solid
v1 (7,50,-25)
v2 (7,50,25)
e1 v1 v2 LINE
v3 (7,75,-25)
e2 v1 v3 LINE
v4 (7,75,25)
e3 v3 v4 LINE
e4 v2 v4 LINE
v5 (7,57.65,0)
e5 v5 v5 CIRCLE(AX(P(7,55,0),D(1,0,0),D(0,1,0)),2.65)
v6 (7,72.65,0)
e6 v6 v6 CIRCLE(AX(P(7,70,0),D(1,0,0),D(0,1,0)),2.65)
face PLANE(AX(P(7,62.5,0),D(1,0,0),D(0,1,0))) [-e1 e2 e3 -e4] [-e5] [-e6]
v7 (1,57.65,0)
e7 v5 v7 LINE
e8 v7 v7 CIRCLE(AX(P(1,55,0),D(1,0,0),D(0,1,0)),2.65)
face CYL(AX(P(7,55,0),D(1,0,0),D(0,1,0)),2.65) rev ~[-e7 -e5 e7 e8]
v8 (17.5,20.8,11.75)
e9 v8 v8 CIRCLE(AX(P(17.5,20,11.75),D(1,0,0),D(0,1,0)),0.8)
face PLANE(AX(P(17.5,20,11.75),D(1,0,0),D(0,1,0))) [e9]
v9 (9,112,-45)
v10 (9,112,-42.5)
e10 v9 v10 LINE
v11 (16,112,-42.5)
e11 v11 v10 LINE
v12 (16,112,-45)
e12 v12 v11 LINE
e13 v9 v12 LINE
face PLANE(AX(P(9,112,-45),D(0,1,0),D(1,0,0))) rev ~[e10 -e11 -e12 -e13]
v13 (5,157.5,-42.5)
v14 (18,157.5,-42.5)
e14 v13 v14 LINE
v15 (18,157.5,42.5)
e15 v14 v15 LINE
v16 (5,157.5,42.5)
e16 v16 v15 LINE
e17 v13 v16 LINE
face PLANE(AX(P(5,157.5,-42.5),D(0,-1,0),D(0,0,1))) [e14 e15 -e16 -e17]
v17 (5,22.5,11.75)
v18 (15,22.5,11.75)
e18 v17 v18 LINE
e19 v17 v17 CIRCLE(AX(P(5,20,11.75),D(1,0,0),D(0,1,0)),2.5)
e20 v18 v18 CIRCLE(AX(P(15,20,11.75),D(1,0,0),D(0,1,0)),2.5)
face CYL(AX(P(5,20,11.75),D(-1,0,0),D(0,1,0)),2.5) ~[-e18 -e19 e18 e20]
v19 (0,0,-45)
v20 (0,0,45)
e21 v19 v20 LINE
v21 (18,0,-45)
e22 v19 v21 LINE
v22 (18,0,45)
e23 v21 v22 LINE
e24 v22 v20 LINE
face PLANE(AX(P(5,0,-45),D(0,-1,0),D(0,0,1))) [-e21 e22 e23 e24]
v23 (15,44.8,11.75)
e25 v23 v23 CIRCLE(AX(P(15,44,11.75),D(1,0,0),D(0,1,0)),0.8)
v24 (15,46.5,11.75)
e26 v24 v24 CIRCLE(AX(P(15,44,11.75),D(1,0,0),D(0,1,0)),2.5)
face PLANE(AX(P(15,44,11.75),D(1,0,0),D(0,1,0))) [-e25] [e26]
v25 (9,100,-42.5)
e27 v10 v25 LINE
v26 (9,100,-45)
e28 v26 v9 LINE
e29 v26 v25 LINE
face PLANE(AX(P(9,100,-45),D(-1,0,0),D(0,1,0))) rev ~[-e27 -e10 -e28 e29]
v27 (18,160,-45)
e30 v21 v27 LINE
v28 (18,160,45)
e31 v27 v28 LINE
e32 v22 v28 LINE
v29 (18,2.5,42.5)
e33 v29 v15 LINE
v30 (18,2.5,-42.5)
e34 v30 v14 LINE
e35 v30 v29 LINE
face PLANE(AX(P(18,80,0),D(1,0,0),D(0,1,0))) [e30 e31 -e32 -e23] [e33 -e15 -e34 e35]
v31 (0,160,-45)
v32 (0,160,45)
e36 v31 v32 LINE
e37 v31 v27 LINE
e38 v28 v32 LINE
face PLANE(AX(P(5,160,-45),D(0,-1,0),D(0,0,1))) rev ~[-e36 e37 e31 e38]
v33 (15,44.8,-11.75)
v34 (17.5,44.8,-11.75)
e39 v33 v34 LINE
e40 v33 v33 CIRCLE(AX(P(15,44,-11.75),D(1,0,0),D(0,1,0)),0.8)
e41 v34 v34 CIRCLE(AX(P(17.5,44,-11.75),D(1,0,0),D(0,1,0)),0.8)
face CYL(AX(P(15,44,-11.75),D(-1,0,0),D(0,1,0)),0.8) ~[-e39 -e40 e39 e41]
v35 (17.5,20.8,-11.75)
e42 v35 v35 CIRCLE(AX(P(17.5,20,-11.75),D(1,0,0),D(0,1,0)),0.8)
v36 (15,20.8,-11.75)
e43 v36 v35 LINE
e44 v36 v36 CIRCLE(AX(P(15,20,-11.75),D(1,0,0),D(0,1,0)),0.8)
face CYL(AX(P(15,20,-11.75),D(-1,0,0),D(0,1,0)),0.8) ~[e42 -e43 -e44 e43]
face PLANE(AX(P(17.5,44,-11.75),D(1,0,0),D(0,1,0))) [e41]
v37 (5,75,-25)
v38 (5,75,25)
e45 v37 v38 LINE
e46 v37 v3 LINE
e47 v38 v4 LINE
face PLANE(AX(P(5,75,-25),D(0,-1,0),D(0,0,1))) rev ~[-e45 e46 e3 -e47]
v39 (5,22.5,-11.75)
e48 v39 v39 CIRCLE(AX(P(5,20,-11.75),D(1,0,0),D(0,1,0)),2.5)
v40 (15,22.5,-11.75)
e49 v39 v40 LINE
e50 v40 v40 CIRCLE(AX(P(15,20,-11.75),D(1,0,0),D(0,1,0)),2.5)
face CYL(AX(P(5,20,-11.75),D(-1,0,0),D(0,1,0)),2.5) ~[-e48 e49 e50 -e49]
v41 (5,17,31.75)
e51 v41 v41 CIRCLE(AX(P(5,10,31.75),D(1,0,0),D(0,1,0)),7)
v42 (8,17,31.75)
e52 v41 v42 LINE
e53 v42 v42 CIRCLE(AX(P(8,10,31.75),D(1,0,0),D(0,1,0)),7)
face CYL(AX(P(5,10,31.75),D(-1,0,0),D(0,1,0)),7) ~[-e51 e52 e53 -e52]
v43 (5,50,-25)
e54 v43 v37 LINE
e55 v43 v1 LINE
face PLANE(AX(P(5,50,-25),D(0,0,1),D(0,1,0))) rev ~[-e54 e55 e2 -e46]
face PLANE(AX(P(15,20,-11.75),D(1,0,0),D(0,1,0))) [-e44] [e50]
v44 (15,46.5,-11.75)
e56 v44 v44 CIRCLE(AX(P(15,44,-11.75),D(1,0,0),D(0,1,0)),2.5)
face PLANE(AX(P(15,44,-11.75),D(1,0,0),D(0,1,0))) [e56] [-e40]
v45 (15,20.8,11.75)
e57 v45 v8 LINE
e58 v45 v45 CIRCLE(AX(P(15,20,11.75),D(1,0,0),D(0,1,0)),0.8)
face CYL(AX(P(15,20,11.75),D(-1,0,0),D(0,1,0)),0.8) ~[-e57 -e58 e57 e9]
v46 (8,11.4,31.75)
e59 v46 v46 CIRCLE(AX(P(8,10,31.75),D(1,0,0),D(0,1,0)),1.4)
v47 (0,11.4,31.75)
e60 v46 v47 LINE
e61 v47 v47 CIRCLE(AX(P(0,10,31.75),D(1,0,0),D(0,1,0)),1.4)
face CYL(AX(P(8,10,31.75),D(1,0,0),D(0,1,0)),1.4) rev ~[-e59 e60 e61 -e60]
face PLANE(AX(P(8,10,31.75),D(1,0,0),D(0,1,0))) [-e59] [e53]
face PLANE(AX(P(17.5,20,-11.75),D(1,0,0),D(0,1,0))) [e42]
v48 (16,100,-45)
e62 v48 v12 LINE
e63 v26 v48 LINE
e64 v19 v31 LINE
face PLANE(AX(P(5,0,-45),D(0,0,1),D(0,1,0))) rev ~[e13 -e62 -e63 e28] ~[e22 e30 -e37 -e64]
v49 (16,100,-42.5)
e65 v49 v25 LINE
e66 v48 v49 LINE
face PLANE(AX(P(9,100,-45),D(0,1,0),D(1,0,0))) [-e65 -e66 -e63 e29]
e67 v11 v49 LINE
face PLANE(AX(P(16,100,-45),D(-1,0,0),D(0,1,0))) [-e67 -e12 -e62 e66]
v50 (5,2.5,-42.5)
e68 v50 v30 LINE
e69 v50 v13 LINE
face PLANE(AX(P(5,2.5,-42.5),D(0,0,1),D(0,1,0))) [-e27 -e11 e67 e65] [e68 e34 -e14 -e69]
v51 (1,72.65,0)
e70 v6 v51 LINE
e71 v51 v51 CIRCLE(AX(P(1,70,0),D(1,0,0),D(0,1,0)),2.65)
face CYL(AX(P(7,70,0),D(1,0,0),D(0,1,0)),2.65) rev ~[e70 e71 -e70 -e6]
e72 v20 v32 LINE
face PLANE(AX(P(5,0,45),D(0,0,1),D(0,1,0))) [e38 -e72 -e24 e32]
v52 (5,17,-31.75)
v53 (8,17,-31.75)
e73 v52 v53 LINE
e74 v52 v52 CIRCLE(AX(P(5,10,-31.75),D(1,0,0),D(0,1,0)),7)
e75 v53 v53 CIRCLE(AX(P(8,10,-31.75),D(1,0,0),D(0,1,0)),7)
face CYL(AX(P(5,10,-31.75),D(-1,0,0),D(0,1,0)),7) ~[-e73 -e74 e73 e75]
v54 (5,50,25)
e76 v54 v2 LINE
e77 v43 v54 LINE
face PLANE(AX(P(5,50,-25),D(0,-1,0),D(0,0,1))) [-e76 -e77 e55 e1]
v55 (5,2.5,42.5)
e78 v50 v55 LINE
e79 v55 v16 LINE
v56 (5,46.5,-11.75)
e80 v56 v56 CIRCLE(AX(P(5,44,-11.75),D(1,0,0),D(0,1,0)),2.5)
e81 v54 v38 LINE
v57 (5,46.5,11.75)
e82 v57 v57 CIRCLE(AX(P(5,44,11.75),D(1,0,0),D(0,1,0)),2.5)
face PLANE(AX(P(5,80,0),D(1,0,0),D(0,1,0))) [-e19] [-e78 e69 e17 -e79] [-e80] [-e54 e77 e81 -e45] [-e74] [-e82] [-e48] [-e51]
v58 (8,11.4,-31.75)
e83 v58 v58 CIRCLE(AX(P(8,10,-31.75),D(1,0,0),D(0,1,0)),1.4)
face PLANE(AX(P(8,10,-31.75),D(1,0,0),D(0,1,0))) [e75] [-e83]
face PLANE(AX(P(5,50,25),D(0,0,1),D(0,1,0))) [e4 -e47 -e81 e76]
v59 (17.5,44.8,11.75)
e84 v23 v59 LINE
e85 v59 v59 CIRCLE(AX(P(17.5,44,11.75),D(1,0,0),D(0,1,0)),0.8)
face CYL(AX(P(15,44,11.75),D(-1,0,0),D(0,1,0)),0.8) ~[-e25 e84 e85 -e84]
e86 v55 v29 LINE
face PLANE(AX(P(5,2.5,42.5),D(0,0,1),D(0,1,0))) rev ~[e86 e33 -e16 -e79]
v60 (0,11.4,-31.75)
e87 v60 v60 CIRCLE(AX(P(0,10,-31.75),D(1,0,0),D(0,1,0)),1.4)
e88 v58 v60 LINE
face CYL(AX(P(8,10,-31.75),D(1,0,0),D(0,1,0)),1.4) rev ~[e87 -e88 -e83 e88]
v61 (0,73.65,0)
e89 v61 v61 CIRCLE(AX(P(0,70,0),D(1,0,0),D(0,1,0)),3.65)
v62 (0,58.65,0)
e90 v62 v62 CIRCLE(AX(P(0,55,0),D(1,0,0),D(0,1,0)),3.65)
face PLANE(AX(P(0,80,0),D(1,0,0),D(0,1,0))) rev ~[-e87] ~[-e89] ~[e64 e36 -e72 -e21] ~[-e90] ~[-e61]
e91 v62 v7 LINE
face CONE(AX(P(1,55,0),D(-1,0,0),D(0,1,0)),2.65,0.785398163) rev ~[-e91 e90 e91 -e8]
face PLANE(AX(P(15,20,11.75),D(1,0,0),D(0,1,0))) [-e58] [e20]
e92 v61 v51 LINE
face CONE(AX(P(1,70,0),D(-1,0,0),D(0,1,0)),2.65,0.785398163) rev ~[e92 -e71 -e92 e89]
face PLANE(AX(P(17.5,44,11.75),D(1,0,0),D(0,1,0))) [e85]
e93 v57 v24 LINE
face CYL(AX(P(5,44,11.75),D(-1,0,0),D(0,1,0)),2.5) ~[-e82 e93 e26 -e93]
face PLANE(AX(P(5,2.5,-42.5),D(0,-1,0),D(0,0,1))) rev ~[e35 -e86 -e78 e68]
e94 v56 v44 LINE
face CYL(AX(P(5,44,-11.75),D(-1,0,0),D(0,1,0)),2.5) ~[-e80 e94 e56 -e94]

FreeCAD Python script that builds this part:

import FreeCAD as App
import Part
import Sketcher

V = App.Vector
Q = App.Units.Quantity


def edges_at(feature, points):
    """Names of the edges that pass closest to the given points."""
    edges = feature.Shape.Edges
    near = lambda p: min(range(len(edges)), key=lambda i: edges[i].distToShape(Part.Vertex(*p))[0])
    return sorted({f"Edge{near(p) + 1}" for p in points})

doc = App.newDocument("Part")
body = doc.addObject("PartDesign::Body", "Body")

sketch1 = body.newObject("Sketcher::SketchObject", "Sketch")
sketch1.AttachmentSupport = (doc.getObject("YZ_Plane"), [""])
sketch1.MapMode = "FlatFace"
sketch1.addGeometry([
    Part.LineSegment(V(0, 45, 0), V(0, -45, 0)),
    Part.LineSegment(V(0, -45, 0), V(160, -45, 0)),
    Part.LineSegment(V(160, -45, 0), V(160, 45, 0)),
    Part.LineSegment(V(160, 45, 0), V(0, 45, 0)),
], False)
sketch1.addConstraint([
    Sketcher.Constraint("Coincident", 0, 2, 1, 1),
    Sketcher.Constraint("Coincident", 1, 2, 2, 1),
    Sketcher.Constraint("Coincident", 2, 2, 3, 1),
    Sketcher.Constraint("Coincident", 3, 2, 0, 1),
    Sketcher.Constraint("Vertical", 0),
    Sketcher.Constraint("Horizontal", 1),
    Sketcher.Constraint("Vertical", 2),
    Sketcher.Constraint("Horizontal", 3),
    Sketcher.Constraint("Symmetric", 0, 2, 3, 2, -1, 1),
    Sketcher.Constraint("DistanceX", 1, 1, 1, 2, Q("160 mm")),
    Sketcher.Constraint("DistanceY", 0, 2, 0, 1, Q("90 mm")),
])
pad1 = body.newObject("PartDesign::Pad", "Pad")
pad1.Profile = sketch1
pad1.Length = 5

sketch2 = body.newObject("Sketcher::SketchObject", "Sketch001")
sketch2.AttachmentSupport = (doc.getObject("YZ_Plane"), [""])
sketch2.MapMode = "FlatFace"
sketch2.AttachmentOffset = App.Placement(V(0, 0, 5), App.Rotation())
sketch2.addGeometry([
    Part.Circle(V(10, 32, 0), V(0, 0, 1), 7),
    Part.Circle(V(10, -32, 0), V(0, 0, 1), 7),
], False)
sketch2.addConstraint([
    Sketcher.Constraint("Equal", 0, 1),
    Sketcher.Constraint("Symmetric", 0, 3, 1, 3, -1),
    Sketcher.Constraint("Diameter", 0, Q("14 mm")),
    Sketcher.Constraint("DistanceX", -1, 1, 0, 3, Q("10 mm")),
    Sketcher.Constraint("DistanceY", 1, 3, 0, 3, Q("63.5 mm")),
])
pad2 = body.newObject("PartDesign::Pad", "Pad001")
pad2.Profile = sketch2
pad2.Length = 3

sketch3 = body.newObject("Sketcher::SketchObject", "Sketch002")
sketch3.AttachmentSupport = (doc.getObject("YZ_Plane"), [""])
sketch3.MapMode = "FlatFace"
sketch3.AttachmentOffset = App.Placement(V(0, 0, 5), App.Rotation())
sketch3.addGeometry([
    Part.Circle(V(20, 11.8, 0), V(0, 0, 1), 2.5),
    Part.Circle(V(44, 11.8, 0), V(0, 0, 1), 2.5),
    Part.Circle(V(20, -11.8, 0), V(0, 0, 1), 2.5),
    Part.Circle(V(44, -11.8, 0), V(0, 0, 1), 2.5),
], False)
sketch3.addConstraint([
    Sketcher.Constraint("Equal", 0, 1),
    Sketcher.Constraint("Equal", 1, 2),
    Sketcher.Constraint("Equal", 2, 3),
    Sketcher.Constraint("Symmetric", 0, 3, 2, 3, -1),
    Sketcher.Constraint("Symmetric", 1, 3, 3, 3, -1),
    Sketcher.Constraint("Horizontal", 0, 3, 1, 3),
    Sketcher.Constraint("Diameter", 0, Q("5 mm")),
    Sketcher.Constraint("DistanceX", -1, 1, 0, 3, Q("20 mm")),
    Sketcher.Constraint("DistanceX", -1, 1, 1, 3, Q("44 mm")),
    Sketcher.Constraint("DistanceY", 2, 3, 0, 3, Q("23.5 mm")),
])
pad3 = body.newObject("PartDesign::Pad", "Pad002")
pad3.Profile = sketch3
pad3.Length = 10

sketch4 = body.newObject("Sketcher::SketchObject", "Sketch003")
sketch4.AttachmentSupport = (doc.getObject("YZ_Plane"), [""])
sketch4.MapMode = "FlatFace"
sketch4.AttachmentOffset = App.Placement(V(0, 0, 15), App.Rotation())
sketch4.addGeometry([
    Part.Circle(V(44, 11.8, 0), V(0, 0, 1), 0.8),
    Part.Circle(V(20, 11.8, 0), V(0, 0, 1), 0.8),
    Part.Circle(V(20, -11.8, 0), V(0, 0, 1), 0.8),
    Part.Circle(V(44, -11.8, 0), V(0, 0, 1), 0.8),
], False)
sketch4.addConstraint([
    Sketcher.Constraint("Equal", 0, 1),
    Sketcher.Constraint("Equal", 1, 2),
    Sketcher.Constraint("Equal", 2, 3),
    Sketcher.Constraint("Symmetric", 1, 3, 2, 3, -1),
    Sketcher.Constraint("Symmetric", 0, 3, 3, 3, -1),
    Sketcher.Constraint("Horizontal", 0, 3, 1, 3),
    Sketcher.Constraint("Diameter", 0, Q("1.6 mm")),
    Sketcher.Constraint("DistanceX", -1, 1, 0, 3, Q("44 mm")),
    Sketcher.Constraint("DistanceX", -1, 1, 1, 3, Q("20 mm")),
    Sketcher.Constraint("DistanceY", 2, 3, 1, 3, Q("23.5 mm")),
])
pad4 = body.newObject("PartDesign::Pad", "Pad003")
pad4.Profile = sketch4
pad4.Length = 2.5

sketch5 = body.newObject("Sketcher::SketchObject", "Sketch004")
sketch5.AttachmentSupport = (doc.getObject("YZ_Plane"), [""])
sketch5.MapMode = "FlatFace"
sketch5.AttachmentOffset = App.Placement(V(0, 0, 8), App.Rotation())
sketch5.addGeometry([
    Part.Circle(V(10, 31.8, 0), V(0, 0, 1), 1.4),
    Part.Circle(V(10, -31.8, 0), V(0, 0, 1), 1.4),
], False)
sketch5.addConstraint([
    Sketcher.Constraint("Equal", 0, 1),
    Sketcher.Constraint("Symmetric", 0, 3, 1, 3, -1),
    Sketcher.Constraint("Diameter", 0, Q("2.8 mm")),
    Sketcher.Constraint("DistanceX", -1, 1, 0, 3, Q("10 mm")),
    Sketcher.Constraint("DistanceY", 1, 3, 0, 3, Q("63.5 mm")),
])
pocket1 = body.newObject("PartDesign::Pocket", "Pocket")
pocket1.Profile = sketch5
pocket1.Length = 8

sketch6 = body.newObject("Sketcher::SketchObject", "Sketch005")
sketch6.AttachmentSupport = (doc.getObject("YZ_Plane"), [""])
sketch6.MapMode = "FlatFace"
sketch6.AttachmentOffset = App.Placement(V(0, 0, 5), App.Rotation())
sketch6.addGeometry([
    Part.LineSegment(V(50, 25, 0), V(50, -25, 0)),
    Part.LineSegment(V(50, -25, 0), V(75, -25, 0)),
    Part.LineSegment(V(75, -25, 0), V(75, 25, 0)),
    Part.LineSegment(V(75, 25, 0), V(50, 25, 0)),
], False)
sketch6.addConstraint([
    Sketcher.Constraint("Coincident", 0, 2, 1, 1),
    Sketcher.Constraint("Coincident", 1, 2, 2, 1),
    Sketcher.Constraint("Coincident", 2, 2, 3, 1),
    Sketcher.Constraint("Coincident", 3, 2, 0, 1),
    Sketcher.Constraint("Vertical", 0),
    Sketcher.Constraint("Horizontal", 1),
    Sketcher.Constraint("Vertical", 2),
    Sketcher.Constraint("Horizontal", 3),
    Sketcher.Constraint("DistanceX", 1, 1, 1, 2, Q("25 mm")),
    Sketcher.Constraint("DistanceY", 0, 2, 0, 1, Q("50 mm")),
    Sketcher.Constraint("DistanceX", -1, 1, 0, 2, Q("50 mm")),
    Sketcher.Constraint("DistanceY", 0, 2, -1, 1, Q("25 mm")),
])
pad5 = body.newObject("PartDesign::Pad", "Pad004")
pad5.Profile = sketch6
pad5.Length = 2

sketch7 = body.newObject("Sketcher::SketchObject", "Sketch006")
sketch7.AttachmentSupport = (doc.getObject("YZ_Plane"), [""])
sketch7.MapMode = "FlatFace"
sketch7.AttachmentOffset = App.Placement(V(0, 0, 7), App.Rotation())
sketch7.addGeometry([
    Part.Circle(V(55, 0, 0), V(0, 0, 1), 2.6),
    Part.Circle(V(70, 0, 0), V(0, 0, 1), 2.6),
], False)
sketch7.addConstraint([
    Sketcher.Constraint("Equal", 0, 1),
    Sketcher.Constraint("PointOnObject", 0, 3, -1),
    Sketcher.Constraint("PointOnObject", 1, 3, -1),
    Sketcher.Constraint("Diameter", 0, Q("5.3 mm")),
    Sketcher.Constraint("DistanceX", -1, 1, 0, 3, Q("55 mm")),
    Sketcher.Constraint("DistanceX", -1, 1, 1, 3, Q("70 mm")),
])
pocket2 = body.newObject("PartDesign::Pocket", "Pocket001")
pocket2.Profile = sketch7
pocket2.Length = 7
doc.recompute()

chamfer = body.newObject("PartDesign::Chamfer", "Chamfer")
chamfer.Base = (pocket2, edges_at(pocket2, [(0, 52.35, 0)]))
chamfer.Size = 1
doc.recompute()

chamfer2 = body.newObject("PartDesign::Chamfer", "Chamfer001")
chamfer2.Base = (chamfer, edges_at(chamfer, [(0, 67.35, 0)]))
chamfer2.Size = 1

sketch8 = body.newObject("Sketcher::SketchObject", "Sketch007")
sketch8.AttachmentSupport = (doc.getObject("YZ_Plane"), [""])
sketch8.MapMode = "FlatFace"
sketch8.AttachmentOffset = App.Placement(V(0, 0, 5), App.Rotation())
sketch8.addGeometry([
    Part.LineSegment(V(0, 45, 0), V(0, -45, 0)),
    Part.LineSegment(V(0, -45, 0), V(160, -45, 0)),
    Part.LineSegment(V(160, -45, 0), V(160, 45, 0)),
    Part.LineSegment(V(160, 45, 0), V(0, 45, 0)),
    Part.LineSegment(V(158, -42, 0), V(2, -42, 0)),
    Part.LineSegment(V(2, -42, 0), V(2, 42, 0)),
    Part.LineSegment(V(2, 42, 0), V(158, 42, 0)),
    Part.LineSegment(V(158, 42, 0), V(158, -42, 0)),
], False)
sketch8.addConstraint([
    Sketcher.Constraint("Coincident", 0, 2, 1, 1),
    Sketcher.Constraint("Coincident", 1, 2, 2, 1),
    Sketcher.Constraint("Coincident", 2, 2, 3, 1),
    Sketcher.Constraint("Coincident", 3, 2, 0, 1),
    Sketcher.Constraint("Coincident", 4, 2, 5, 1),
    Sketcher.Constraint("Coincident", 5, 2, 6, 1),
    Sketcher.Constraint("Coincident", 6, 2, 7, 1),
    Sketcher.Constraint("Coincident", 7, 2, 4, 1),
    Sketcher.Constraint("Vertical", 0),
    Sketcher.Constraint("Horizontal", 1),
    Sketcher.Constraint("Vertical", 2),
    Sketcher.Constraint("Horizontal", 3),
    Sketcher.Constraint("Horizontal", 4),
    Sketcher.Constraint("Vertical", 5),
    Sketcher.Constraint("Horizontal", 6),
    Sketcher.Constraint("Vertical", 7),
    Sketcher.Constraint("Symmetric", 0, 2, 3, 2, -1, 1),
    Sketcher.Constraint("DistanceX", 1, 1, 1, 2, Q("160 mm")),
    Sketcher.Constraint("DistanceX", 4, 2, 4, 1, Q("155 mm")),
    Sketcher.Constraint("DistanceY", 0, 2, 0, 1, Q("90 mm")),
    Sketcher.Constraint("DistanceY", 5, 1, 5, 2, Q("85 mm")),
    Sketcher.Constraint("DistanceX", -1, 1, 4, 2, Q("2.5 mm")),
    Sketcher.Constraint("DistanceY", 4, 2, -1, 1, Q("42.5 mm")),
])
pad6 = body.newObject("PartDesign::Pad", "Pad005")
pad6.Profile = sketch8
pad6.Length = 13

sketch9 = body.newObject("Sketcher::SketchObject", "Sketch008")
sketch9.AttachmentSupport = (doc.getObject("XY_Plane"), [""])
sketch9.MapMode = "FlatFace"
sketch9.AttachmentOffset = App.Placement(V(0, 0, -45), App.Rotation())
sketch9.addGeometry([
    Part.LineSegment(V(16, 100, 0), V(9, 100, 0)),
    Part.LineSegment(V(9, 100, 0), V(9, 112, 0)),
    Part.LineSegment(V(9, 112, 0), V(16, 112, 0)),
    Part.LineSegment(V(16, 112, 0), V(16, 100, 0)),
], False)
sketch9.addConstraint([
    Sketcher.Constraint("Coincident", 0, 2, 1, 1),
    Sketcher.Constraint("Coincident", 1, 2, 2, 1),
    Sketcher.Constraint("Coincident", 2, 2, 3, 1),
    Sketcher.Constraint("Coincident", 3, 2, 0, 1),
    Sketcher.Constraint("Horizontal", 0),
    Sketcher.Constraint("Vertical", 1),
    Sketcher.Constraint("Horizontal", 2),
    Sketcher.Constraint("Vertical", 3),
    Sketcher.Constraint("DistanceX", 0, 2, 0, 1, Q("7 mm")),
    Sketcher.Constraint("DistanceY", 1, 1, 1, 2, Q("12 mm")),
    Sketcher.Constraint("DistanceX", -1, 1, 0, 2, Q("9 mm")),
    Sketcher.Constraint("DistanceY", -1, 1, 0, 2, Q("100 mm")),
])
pocket3 = body.newObject("PartDesign::Pocket", "Pocket002")
pocket3.Profile = sketch9
pocket3.Length = 5
pocket3.Reversed = True

doc.recompute()
